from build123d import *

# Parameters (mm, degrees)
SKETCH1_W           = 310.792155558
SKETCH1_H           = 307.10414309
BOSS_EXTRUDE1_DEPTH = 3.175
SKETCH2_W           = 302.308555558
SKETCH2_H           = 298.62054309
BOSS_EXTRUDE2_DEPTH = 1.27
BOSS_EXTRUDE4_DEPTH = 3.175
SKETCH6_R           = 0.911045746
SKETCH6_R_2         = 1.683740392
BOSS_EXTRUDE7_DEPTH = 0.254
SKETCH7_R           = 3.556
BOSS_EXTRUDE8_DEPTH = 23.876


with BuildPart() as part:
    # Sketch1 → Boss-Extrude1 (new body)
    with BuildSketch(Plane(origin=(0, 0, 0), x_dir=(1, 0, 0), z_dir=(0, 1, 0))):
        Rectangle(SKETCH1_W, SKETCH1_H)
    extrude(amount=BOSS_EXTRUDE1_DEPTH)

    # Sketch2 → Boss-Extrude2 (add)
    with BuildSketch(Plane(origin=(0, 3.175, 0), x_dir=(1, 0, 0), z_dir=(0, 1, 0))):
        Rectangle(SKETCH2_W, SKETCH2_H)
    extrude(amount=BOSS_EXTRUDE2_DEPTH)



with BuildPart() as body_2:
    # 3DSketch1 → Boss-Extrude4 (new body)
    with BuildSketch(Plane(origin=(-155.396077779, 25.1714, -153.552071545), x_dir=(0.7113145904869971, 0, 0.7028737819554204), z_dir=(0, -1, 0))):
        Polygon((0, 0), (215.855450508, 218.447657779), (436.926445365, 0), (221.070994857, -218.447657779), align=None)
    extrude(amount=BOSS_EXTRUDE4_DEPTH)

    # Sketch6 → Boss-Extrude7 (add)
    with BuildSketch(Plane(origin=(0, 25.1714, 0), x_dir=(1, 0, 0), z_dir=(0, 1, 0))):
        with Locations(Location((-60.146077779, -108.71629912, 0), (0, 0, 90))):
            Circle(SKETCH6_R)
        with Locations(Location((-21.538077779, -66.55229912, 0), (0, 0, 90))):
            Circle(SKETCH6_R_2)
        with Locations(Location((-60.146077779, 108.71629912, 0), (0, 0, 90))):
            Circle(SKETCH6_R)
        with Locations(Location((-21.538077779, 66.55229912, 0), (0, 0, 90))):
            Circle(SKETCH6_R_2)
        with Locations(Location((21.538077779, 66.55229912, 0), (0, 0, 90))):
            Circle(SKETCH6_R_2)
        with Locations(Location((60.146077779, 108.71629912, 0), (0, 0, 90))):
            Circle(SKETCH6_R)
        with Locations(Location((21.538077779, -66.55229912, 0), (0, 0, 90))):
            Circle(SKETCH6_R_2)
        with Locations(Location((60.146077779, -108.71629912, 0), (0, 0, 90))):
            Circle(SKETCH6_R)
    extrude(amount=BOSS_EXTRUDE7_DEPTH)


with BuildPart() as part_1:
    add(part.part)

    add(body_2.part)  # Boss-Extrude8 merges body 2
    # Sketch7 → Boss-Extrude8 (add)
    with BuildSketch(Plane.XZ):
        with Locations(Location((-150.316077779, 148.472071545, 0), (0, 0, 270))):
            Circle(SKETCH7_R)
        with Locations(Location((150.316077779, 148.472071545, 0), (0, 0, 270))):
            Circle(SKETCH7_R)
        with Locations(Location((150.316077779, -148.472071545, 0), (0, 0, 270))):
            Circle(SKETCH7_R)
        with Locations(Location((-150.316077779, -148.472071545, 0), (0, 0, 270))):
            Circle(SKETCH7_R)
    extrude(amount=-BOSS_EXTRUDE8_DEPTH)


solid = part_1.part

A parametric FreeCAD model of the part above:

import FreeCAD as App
import Part
import Sketcher

V = App.Vector
Q = App.Units.Quantity


def add_polygon(sketch, points):
    """Adds a closed chain of lines whose ends are joined by coincident constraints."""
    first, n = sketch.GeometryCount, len(points)
    for a, b in zip(points, points[1:] + points[:1]):
        sketch.addGeometry(Part.LineSegment(App.Vector(*a, 0), App.Vector(*b, 0)), False)
    for i in range(n):
        sketch.addConstraint(Sketcher.Constraint("Coincident", first + i, 2, first + (i + 1) % n, 1))

doc = App.newDocument("Part")
body = doc.addObject("PartDesign::Body", "Body")

# Sketch on XZ plane
sketch1 = body.newObject("Sketcher::SketchObject", "Sketch")
sketch1.AttachmentSupport = (doc.getObject("XZ_Plane"), [""])
sketch1.MapMode = "FlatFace"
add_polygon(sketch1, [(-155.396078, -153.552072), (-155.396078, 153.552072), (155.396078, 153.552072), (155.396078, -153.552072)])  # lines 0-3
sketch1.addConstraint(Sketcher.Constraint("Vertical", 0))
sketch1.addConstraint(Sketcher.Constraint("Horizontal", 1))
sketch1.addConstraint(Sketcher.Constraint("Vertical", 2))
sketch1.addConstraint(Sketcher.Constraint("Horizontal", 3))
sketch1.addConstraint(Sketcher.Constraint("Symmetric", 0, 2, 2, 2, -1, 1))
sketch1.addConstraint(Sketcher.Constraint("DistanceX", 1, 1, 1, 2, Q("310.792156 mm")))
sketch1.addConstraint(Sketcher.Constraint("DistanceY", 0, 1, 0, 2, Q("307.104143 mm")))
pad1 = body.newObject("PartDesign::Pad", "Pad")
pad1.Profile = sketch1
pad1.Length = Q("0.125 in")
pad1.Reversed = True

# Sketch on XZ plane
sketch2 = body.newObject("Sketcher::SketchObject", "Sketch001")
sketch2.AttachmentSupport = (doc.getObject("XZ_Plane"), [""])
sketch2.MapMode = "FlatFace"
sketch2.AttachmentOffset = App.Placement(V(0, 0, -0.125 * 25.4), App.Rotation())
add_polygon(sketch2, [(-151.154278, -149.310272), (-151.154278, 149.310272), (151.154278, 149.310272), (151.154278, -149.310272)])  # lines 0-3
sketch2.addConstraint(Sketcher.Constraint("Vertical", 0))
sketch2.addConstraint(Sketcher.Constraint("Horizontal", 1))
sketch2.addConstraint(Sketcher.Constraint("Vertical", 2))
sketch2.addConstraint(Sketcher.Constraint("Horizontal", 3))
sketch2.addConstraint(Sketcher.Constraint("Symmetric", 0, 2, 2, 2, -1, 1))
sketch2.addConstraint(Sketcher.Constraint("DistanceX", 1, 1, 1, 2, Q("302.308556 mm")))
sketch2.addConstraint(Sketcher.Constraint("DistanceY", 0, 1, 0, 2, Q("298.620543 mm")))
pad2 = body.newObject("PartDesign::Pad", "Pad001")
pad2.Profile = sketch2
pad2.Length = Q("0.05 in")
pad2.Reversed = True
body2 = doc.addObject("PartDesign::Body", "Body001")

# Sketch on XZ plane
sketch3 = body2.newObject("Sketcher::SketchObject", "Sketch002")
sketch3.AttachmentSupport = (doc.getObject("XZ_Plane001"), [""])
sketch3.MapMode = "FlatFace"
sketch3.AttachmentOffset = App.Placement(V(0, 0, -0.991 * 25.4), App.Rotation())
add_polygon(sketch3, [(-155.396078, 153.552071), (-155.396078, -153.552072), (155.396078, -153.552071), (155.396078, 153.552072)])  # lines 0-3
sketch3.addConstraint(Sketcher.Constraint("Vertical", 0))
sketch3.addConstraint(Sketcher.Constraint("Horizontal", 1))
sketch3.addConstraint(Sketcher.Constraint("Vertical", 2))
sketch3.addConstraint(Sketcher.Constraint("Horizontal", 3))
sketch3.addConstraint(Sketcher.Constraint("Symmetric", 0, 2, 2, 2, -1, 1))
sketch3.addConstraint(Sketcher.Constraint("DistanceX", 1, 1, 1, 2, Q("310.792155 mm")))
sketch3.addConstraint(Sketcher.Constraint("DistanceY", 0, 2, 0, 1, Q("307.104143 mm")))
pad3 = body2.newObject("PartDesign::Pad", "Pad002")
pad3.Profile = sketch3
pad3.Length = Q("0.125 in")

# Sketch on XZ plane
sketch4 = body2.newObject("Sketcher::SketchObject", "Sketch003")
sketch4.AttachmentSupport = (doc.getObject("XZ_Plane001"), [""])
sketch4.MapMode = "FlatFace"
sketch4.AttachmentOffset = App.Placement(V(0, 0, -0.991 * 25.4), App.Rotation())
sketch4.addGeometry(Part.Circle(V(-60.146078, 108.716299, 0), V(0, 0, 1), 0.911046), False)
sketch4.addGeometry(Part.Circle(V(-21.538078, 66.552299, 0), V(0, 0, 1), 1.68374), False)
sketch4.addGeometry(Part.Circle(V(-60.146078, -108.716299, 0), V(0, 0, 1), 0.911046), False)
sketch4.addGeometry(Part.Circle(V(-21.538078, -66.552299, 0), V(0, 0, 1), 1.68374), False)
sketch4.addGeometry(Part.Circle(V(21.538078, -66.552299, 0), V(0, 0, 1), 1.68374), False)
sketch4.addGeometry(Part.Circle(V(60.146078, -108.716299, 0), V(0, 0, 1), 0.911046), False)
sketch4.addGeometry(Part.Circle(V(21.538078, 66.552299, 0), V(0, 0, 1), 1.68374), False)
sketch4.addGeometry(Part.Circle(V(60.146078, 108.716299, 0), V(0, 0, 1), 0.911046), False)
sketch4.addConstraint(Sketcher.Constraint("Equal", 0, 2))
sketch4.addConstraint(Sketcher.Constraint("Equal", 1, 3))
sketch4.addConstraint(Sketcher.Constraint("Equal", 3, 4))
sketch4.addConstraint(Sketcher.Constraint("Equal", 2, 5))
sketch4.addConstraint(Sketcher.Constraint("Equal", 4, 6))
sketch4.addConstraint(Sketcher.Constraint("Equal", 5, 7))
sketch4.addConstraint(Sketcher.Constraint("Symmetric", 1, 3, 4, 3, -1, 1))
sketch4.addConstraint(Sketcher.Constraint("Symmetric", 0, 3, 5, 3, -1, 1))
sketch4.addConstraint(Sketcher.Constraint("Symmetric", 3, 3, 6, 3, -1, 1))
sketch4.addConstraint(Sketcher.Constraint("Symmetric", 2, 3, 7, 3, -1, 1))
sketch4.addConstraint(Sketcher.Constraint("Symmetric", 3, 3, 4, 3, -2))
sketch4.addConstraint(Sketcher.Constraint("Symmetric", 2, 3, 5, 3, -2))
sketch4.addConstraint(Sketcher.Constraint("DistanceX", 0, 3, 1, 3, Q("1.52 in")))
sketch4.addConstraint(Sketcher.Constraint("DistanceY", 1, 3, 0, 3, Q("1.66 in")))
sketch4.addConstraint(Sketcher.Constraint("Diameter", 0, Q("1.822091 mm")))
sketch4.addConstraint(Sketcher.Constraint("Diameter", 1, Q("3.367481 mm")))
sketch4.addConstraint(Sketcher.Constraint("DistanceY", -1, 1, 0, 3, Q("108.716299 mm")))
sketch4.addConstraint(Sketcher.Constraint("DistanceX", 0, 3, -1, 1, Q("60.146078 mm")))
pad4 = body2.newObject("PartDesign::Pad", "Pad003")
pad4.Profile = sketch4
pad4.Length = Q("0.01 in")
pad4.Reversed = True
body.AllowCompound = True
doc.recompute()

boolean = body.newObject("PartDesign::Boolean", "Boolean")
boolean.Type = "Fuse"
boolean.addObjects([body2])

# Sketch on XZ plane
sketch5 = body.newObject("Sketcher::SketchObject", "Sketch004")
sketch5.AttachmentSupport = (doc.getObject("XZ_Plane"), [""])
sketch5.MapMode = "FlatFace"
sketch5.addGeometry(Part.Circle(V(-150.316078, 148.472072, 0), V(0, 0, 1), 3.556), False)
sketch5.addGeometry(Part.Circle(V(150.316078, 148.472072, 0), V(0, 0, 1), 3.556), False)
sketch5.addGeometry(Part.Circle(V(150.316078, -148.472072, 0), V(0, 0, 1), 3.556), False)
sketch5.addGeometry(Part.Circle(V(-150.316078, -148.472072, 0), V(0, 0, 1), 3.556), False)
sketch5.addConstraint(Sketcher.Constraint("Equal", 0, 1))
sketch5.addConstraint(Sketcher.Constraint("Equal", 1, 2))
sketch5.addConstraint(Sketcher.Constraint("Equal", 2, 3))
sketch5.addConstraint(Sketcher.Constraint("Symmetric", 0, 3, 2, 3, -1, 1))
sketch5.addConstraint(Sketcher.Constraint("Symmetric", 1, 3, 3, 3, -1, 1))
sketch5.addConstraint(Sketcher.Constraint("Symmetric", 0, 3, 1, 3, -2))
sketch5.addConstraint(Sketcher.Constraint("Diameter", 0, Q("0.28 in")))
sketch5.addConstraint(Sketcher.Constraint("DistanceY", -1, 1, 0, 3, Q("148.472072 mm")))
sketch5.addConstraint(Sketcher.Constraint("DistanceX", 0, 3, -1, 1, Q("150.316078 mm")))
pad5 = body.newObject("PartDesign::Pad", "Pad004")
pad5.Profile = sketch5
pad5.Length = Q("0.94 in")
pad5.Reversed = True

doc.recompute()
